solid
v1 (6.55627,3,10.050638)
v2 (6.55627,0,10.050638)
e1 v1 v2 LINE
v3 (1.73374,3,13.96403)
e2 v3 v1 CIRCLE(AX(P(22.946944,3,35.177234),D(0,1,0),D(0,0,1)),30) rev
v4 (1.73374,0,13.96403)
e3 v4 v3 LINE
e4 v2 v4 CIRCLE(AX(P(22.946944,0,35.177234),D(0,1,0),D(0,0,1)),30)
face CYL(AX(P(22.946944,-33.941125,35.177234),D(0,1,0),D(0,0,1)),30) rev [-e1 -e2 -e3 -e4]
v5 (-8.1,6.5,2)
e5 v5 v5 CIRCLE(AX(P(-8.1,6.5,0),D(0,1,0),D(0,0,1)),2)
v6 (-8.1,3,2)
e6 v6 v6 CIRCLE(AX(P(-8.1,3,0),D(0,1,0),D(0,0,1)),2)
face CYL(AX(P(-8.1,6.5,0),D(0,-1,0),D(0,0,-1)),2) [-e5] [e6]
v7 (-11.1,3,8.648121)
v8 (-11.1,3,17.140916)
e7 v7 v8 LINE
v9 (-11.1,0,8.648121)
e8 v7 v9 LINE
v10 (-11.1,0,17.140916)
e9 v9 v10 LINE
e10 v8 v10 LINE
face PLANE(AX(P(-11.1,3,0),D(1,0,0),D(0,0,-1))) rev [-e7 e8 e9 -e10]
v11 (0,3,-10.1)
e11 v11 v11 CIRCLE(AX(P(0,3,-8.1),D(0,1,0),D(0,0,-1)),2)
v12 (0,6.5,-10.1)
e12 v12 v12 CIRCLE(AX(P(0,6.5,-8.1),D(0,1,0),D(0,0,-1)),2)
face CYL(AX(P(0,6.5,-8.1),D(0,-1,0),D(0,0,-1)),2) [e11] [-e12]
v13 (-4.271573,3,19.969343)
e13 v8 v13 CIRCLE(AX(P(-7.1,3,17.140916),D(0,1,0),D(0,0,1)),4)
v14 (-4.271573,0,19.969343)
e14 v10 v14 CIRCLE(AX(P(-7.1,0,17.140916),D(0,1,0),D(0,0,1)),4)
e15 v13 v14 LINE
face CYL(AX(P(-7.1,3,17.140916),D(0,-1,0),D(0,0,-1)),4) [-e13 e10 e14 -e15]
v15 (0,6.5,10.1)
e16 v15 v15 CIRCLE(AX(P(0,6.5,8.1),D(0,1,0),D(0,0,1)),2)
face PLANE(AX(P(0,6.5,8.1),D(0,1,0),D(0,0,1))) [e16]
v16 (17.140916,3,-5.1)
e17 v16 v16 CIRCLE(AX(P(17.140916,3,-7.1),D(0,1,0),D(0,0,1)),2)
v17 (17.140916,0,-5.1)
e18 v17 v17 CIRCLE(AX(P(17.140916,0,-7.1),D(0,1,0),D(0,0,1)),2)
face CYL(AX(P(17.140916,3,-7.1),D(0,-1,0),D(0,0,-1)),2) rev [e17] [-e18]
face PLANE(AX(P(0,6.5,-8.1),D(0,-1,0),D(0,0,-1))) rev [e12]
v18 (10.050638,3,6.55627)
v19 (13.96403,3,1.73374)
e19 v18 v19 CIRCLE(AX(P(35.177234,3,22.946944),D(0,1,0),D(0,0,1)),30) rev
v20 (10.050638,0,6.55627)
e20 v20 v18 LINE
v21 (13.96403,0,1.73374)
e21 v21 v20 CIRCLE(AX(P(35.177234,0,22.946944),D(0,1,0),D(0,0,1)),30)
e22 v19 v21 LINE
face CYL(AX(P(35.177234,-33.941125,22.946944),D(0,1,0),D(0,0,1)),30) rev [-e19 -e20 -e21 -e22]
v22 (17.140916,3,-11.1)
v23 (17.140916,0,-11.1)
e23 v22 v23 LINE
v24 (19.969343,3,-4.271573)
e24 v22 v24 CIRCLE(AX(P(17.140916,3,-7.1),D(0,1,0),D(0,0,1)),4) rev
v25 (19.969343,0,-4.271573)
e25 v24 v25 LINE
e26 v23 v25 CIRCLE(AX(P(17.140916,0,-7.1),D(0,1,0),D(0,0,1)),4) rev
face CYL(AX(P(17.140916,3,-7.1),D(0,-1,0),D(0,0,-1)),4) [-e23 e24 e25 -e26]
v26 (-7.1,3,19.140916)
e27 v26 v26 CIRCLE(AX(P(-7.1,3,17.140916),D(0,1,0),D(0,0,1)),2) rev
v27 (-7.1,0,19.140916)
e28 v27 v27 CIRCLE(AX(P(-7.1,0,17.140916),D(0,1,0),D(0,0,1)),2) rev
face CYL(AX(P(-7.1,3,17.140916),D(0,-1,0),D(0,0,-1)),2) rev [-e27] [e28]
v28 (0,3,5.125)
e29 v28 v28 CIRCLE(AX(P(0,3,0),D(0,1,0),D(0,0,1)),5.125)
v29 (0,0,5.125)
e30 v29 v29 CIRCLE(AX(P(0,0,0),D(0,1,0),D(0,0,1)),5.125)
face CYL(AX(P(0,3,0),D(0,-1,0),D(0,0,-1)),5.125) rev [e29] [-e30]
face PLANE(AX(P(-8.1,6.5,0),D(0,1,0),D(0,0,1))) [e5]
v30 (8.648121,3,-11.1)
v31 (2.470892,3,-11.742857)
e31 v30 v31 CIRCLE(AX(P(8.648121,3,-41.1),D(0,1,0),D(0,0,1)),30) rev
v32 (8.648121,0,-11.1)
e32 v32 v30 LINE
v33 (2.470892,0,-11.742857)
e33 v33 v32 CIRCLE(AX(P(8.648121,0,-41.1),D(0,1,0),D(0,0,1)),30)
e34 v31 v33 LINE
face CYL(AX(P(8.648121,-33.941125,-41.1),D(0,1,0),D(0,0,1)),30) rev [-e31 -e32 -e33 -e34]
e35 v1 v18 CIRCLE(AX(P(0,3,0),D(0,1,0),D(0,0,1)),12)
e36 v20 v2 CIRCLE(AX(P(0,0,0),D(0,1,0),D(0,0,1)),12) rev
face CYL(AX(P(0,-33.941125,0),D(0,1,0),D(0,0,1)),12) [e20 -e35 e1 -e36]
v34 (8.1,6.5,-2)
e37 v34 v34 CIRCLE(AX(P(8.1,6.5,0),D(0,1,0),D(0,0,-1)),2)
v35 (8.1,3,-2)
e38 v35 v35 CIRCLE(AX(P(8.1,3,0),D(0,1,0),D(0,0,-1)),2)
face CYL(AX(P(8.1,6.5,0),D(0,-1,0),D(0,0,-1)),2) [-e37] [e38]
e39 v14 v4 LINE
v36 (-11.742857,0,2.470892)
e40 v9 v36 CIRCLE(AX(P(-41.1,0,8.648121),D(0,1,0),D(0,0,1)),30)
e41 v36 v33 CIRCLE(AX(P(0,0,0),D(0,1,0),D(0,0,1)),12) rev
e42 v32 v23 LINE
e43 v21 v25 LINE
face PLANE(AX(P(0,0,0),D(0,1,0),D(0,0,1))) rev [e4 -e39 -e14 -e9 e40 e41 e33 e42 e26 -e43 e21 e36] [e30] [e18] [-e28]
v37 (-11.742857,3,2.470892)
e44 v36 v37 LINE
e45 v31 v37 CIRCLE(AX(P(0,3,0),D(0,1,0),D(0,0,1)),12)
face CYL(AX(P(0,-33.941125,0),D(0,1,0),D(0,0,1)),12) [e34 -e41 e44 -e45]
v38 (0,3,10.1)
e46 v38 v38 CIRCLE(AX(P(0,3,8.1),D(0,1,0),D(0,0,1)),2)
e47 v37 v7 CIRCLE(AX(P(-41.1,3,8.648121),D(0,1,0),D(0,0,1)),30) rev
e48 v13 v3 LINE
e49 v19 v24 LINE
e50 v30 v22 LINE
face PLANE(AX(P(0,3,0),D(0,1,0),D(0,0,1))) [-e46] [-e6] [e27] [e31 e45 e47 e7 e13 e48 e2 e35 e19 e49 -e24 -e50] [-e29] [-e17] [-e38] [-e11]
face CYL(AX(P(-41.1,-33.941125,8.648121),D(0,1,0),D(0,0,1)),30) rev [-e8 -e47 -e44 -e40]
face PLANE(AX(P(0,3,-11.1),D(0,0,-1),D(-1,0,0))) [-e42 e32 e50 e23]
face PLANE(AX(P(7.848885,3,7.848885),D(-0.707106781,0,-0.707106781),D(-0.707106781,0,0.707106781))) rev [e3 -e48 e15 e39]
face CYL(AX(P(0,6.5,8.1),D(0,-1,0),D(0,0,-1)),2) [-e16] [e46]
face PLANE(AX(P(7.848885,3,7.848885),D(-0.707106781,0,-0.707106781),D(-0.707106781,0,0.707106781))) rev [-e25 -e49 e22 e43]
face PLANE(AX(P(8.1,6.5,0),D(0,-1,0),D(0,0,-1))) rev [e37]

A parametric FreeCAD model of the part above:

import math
import FreeCAD as App
import Part
import Sketcher
from FreeCAD import Vector


def edges_at(feature, points):
    """Names of the edges that pass closest to the given points."""
    edges = feature.Shape.Edges
    near = lambda p: min(range(len(edges)), key=lambda i: edges[i].distToShape(Part.Vertex(*p))[0])
    return sorted({f"Edge{near(p) + 1}" for p in points})

doc = App.newDocument("Part")
body = doc.addObject("PartDesign::Body", "Body")

sketch1 = body.newObject("Sketcher::SketchObject", "Sketch")
sketch1.AttachmentSupport = (doc.getObject("XZ_Plane"), [""])
sketch1.MapMode = "FlatFace"
sketch1.addGeometry(Part.LineSegment(Vector(17.1, -11.1, 0), Vector(0, -11.1, 0)), False)
sketch1.addGeometry(Part.ArcOfCircle(Part.Circle(Vector(0, 0, 0), Vector(0, 0, 1), 11.1), math.radians(-180), math.radians(-90)), False)
sketch1.addGeometry(Part.LineSegment(Vector(-11.1, 0, 0), Vector(-11.1, 17.1, 0)), False)
sketch1.addGeometry(Part.ArcOfCircle(Part.Circle(Vector(-7.1, 17.1, 0), Vector(0, 0, 1), 4), math.radians(45), math.radians(180)), False)
sketch1.addGeometry(Part.LineSegment(Vector(-4.3, 20, 0), Vector(20, -4.3, 0)), False)
sketch1.addGeometry(Part.ArcOfCircle(Part.Circle(Vector(17.1, -7.1, 0), Vector(0, 0, 1), 4), math.radians(-90), math.radians(45)), False)
sketch1.addGeometry(Part.Circle(Vector(-7.1, 17.1, 0), Vector(0, 0, 1), 2), False)
sketch1.addGeometry(Part.Circle(Vector(17.1, -7.1, 0), Vector(0, 0, 1), 2), False)
sketch1.addGeometry(Part.Circle(Vector(0, 0, 0), Vector(0, 0, 1), 5.1), False)
sketch1.addConstraint(Sketcher.Constraint("Tangent", 0, 2, 1, 2))
sketch1.addConstraint(Sketcher.Constraint("Tangent", 1, 1, 2, 1))
sketch1.addConstraint(Sketcher.Constraint("Tangent", 2, 2, 3, 2))
sketch1.addConstraint(Sketcher.Constraint("Tangent", 3, 1, 4, 1))
sketch1.addConstraint(Sketcher.Constraint("Tangent", 4, 2, 5, 2))
sketch1.addConstraint(Sketcher.Constraint("Tangent", 5, 1, 0, 1))
sketch1.addConstraint(Sketcher.Constraint("Horizontal", 0))
sketch1.addConstraint(Sketcher.Constraint("Vertical", 2))
sketch1.addConstraint(Sketcher.Constraint("Coincident", 1, 3, -1, 1))
sketch1.addConstraint(Sketcher.Constraint("Coincident", 8, 3, -1, 1))
sketch1.addConstraint(Sketcher.Constraint("Coincident", 6, 3, 3, 3))
sketch1.addConstraint(Sketcher.Constraint("Coincident", 7, 3, 5, 3))
sketch1.addConstraint(Sketcher.Constraint("Equal", 3, 5))
sketch1.addConstraint(Sketcher.Constraint("Equal", 6, 7))
sketch1.addConstraint(Sketcher.Constraint("Equal", 0, 2))
sketch1.addConstraint(Sketcher.Constraint("Diameter", 6, 4.0))
sketch1.addConstraint(Sketcher.Constraint("Radius", 3, 4.0))
sketch1.addConstraint(Sketcher.Constraint("Radius", 1, 11.1))
sketch1.addConstraint(Sketcher.Constraint("Diameter", 8, 10.25))
sketch1.addConstraint(Sketcher.Constraint("DistanceX", 0, 2, 0, 1, 17.140916))
pad1 = body.newObject("PartDesign::Pad", "Pad")
pad1.Profile = sketch1
pad1.Length = 3
pad1.Reversed = True

sketch2 = body.newObject("Sketcher::SketchObject", "Sketch001")
sketch2.AttachmentSupport = (doc.getObject("XZ_Plane"), [""])
sketch2.MapMode = "FlatFace"
sketch2.AttachmentOffset = App.Placement(Vector(0, 0, -3), App.Rotation())
sketch2.addGeometry(Part.Circle(Vector(0, 8.1, 0), Vector(0, 0, 1), 2), False)
sketch2.addGeometry(Part.Circle(Vector(0, -8.1, 0), Vector(0, 0, 1), 2), False)
sketch2.addGeometry(Part.Circle(Vector(8.1, 0, 0), Vector(0, 0, 1), 2), False)
sketch2.addGeometry(Part.Circle(Vector(-8.1, 0, 0), Vector(0, 0, 1), 2), False)
sketch2.addConstraint(Sketcher.Constraint("Equal", 0, 1))
sketch2.addConstraint(Sketcher.Constraint("Equal", 1, 2))
sketch2.addConstraint(Sketcher.Constraint("Equal", 2, 3))
sketch2.addConstraint(Sketcher.Constraint("Symmetric", 0, 3, 1, 3, -1, 1))
sketch2.addConstraint(Sketcher.Constraint("Symmetric", 2, 3, 3, 3, -1, 1))
sketch2.addConstraint(Sketcher.Constraint("PointOnObject", 0, 3, -2))
sketch2.addConstraint(Sketcher.Constraint("PointOnObject", 2, 3, -1))
sketch2.addConstraint(Sketcher.Constraint("Diameter", 0, 4.0))
sketch2.addConstraint(Sketcher.Constraint("DistanceY", -1, 1, 0, 3, 8.1))
sketch2.addConstraint(Sketcher.Constraint("DistanceX", -1, 1, 2, 3, 8.1))
pad2 = body.newObject("PartDesign::Pad", "Pad001")
pad2.Profile = sketch2
pad2.Length = 3.5
pad2.Reversed = True

sketch3 = body.newObject("Sketcher::SketchObject", "Sketch002")
sketch3.AttachmentSupport = (doc.getObject("XZ_Plane"), [""])
sketch3.MapMode = "FlatFace"
sketch3.addGeometry(Part.Circle(Vector(0, 0, 0), Vector(0, 0, 1), 12), False)
sketch3.addGeometry(Part.Circle(Vector(0, 0, 0), Vector(0, 0, 1), 11), False)
sketch3.addConstraint(Sketcher.Constraint("Coincident", 0, 3, -1, 1))
sketch3.addConstraint(Sketcher.Constraint("Coincident", 1, 3, -1, 1))
sketch3.addConstraint(Sketcher.Constraint("Diameter", 0, 24.0))
sketch3.addConstraint(Sketcher.Constraint("Diameter", 1, 22.2))
pad3 = body.newObject("PartDesign::Pad", "Pad002")
pad3.Profile = sketch3
pad3.Length = 3
pad3.Reversed = True
doc.recompute()

fillet = body.newObject("PartDesign::Fillet", "Fillet")
fillet.Base = (pad3, edges_at(pad3, [
    (4.56, 1.5, -11.1),
    (-11.1, 1.5, 4.56),
    (4.625, 1.5, 11.073),
    (11.073, 1.5, 4.625),
]))
fillet.Radius = 30

doc.recompute()
